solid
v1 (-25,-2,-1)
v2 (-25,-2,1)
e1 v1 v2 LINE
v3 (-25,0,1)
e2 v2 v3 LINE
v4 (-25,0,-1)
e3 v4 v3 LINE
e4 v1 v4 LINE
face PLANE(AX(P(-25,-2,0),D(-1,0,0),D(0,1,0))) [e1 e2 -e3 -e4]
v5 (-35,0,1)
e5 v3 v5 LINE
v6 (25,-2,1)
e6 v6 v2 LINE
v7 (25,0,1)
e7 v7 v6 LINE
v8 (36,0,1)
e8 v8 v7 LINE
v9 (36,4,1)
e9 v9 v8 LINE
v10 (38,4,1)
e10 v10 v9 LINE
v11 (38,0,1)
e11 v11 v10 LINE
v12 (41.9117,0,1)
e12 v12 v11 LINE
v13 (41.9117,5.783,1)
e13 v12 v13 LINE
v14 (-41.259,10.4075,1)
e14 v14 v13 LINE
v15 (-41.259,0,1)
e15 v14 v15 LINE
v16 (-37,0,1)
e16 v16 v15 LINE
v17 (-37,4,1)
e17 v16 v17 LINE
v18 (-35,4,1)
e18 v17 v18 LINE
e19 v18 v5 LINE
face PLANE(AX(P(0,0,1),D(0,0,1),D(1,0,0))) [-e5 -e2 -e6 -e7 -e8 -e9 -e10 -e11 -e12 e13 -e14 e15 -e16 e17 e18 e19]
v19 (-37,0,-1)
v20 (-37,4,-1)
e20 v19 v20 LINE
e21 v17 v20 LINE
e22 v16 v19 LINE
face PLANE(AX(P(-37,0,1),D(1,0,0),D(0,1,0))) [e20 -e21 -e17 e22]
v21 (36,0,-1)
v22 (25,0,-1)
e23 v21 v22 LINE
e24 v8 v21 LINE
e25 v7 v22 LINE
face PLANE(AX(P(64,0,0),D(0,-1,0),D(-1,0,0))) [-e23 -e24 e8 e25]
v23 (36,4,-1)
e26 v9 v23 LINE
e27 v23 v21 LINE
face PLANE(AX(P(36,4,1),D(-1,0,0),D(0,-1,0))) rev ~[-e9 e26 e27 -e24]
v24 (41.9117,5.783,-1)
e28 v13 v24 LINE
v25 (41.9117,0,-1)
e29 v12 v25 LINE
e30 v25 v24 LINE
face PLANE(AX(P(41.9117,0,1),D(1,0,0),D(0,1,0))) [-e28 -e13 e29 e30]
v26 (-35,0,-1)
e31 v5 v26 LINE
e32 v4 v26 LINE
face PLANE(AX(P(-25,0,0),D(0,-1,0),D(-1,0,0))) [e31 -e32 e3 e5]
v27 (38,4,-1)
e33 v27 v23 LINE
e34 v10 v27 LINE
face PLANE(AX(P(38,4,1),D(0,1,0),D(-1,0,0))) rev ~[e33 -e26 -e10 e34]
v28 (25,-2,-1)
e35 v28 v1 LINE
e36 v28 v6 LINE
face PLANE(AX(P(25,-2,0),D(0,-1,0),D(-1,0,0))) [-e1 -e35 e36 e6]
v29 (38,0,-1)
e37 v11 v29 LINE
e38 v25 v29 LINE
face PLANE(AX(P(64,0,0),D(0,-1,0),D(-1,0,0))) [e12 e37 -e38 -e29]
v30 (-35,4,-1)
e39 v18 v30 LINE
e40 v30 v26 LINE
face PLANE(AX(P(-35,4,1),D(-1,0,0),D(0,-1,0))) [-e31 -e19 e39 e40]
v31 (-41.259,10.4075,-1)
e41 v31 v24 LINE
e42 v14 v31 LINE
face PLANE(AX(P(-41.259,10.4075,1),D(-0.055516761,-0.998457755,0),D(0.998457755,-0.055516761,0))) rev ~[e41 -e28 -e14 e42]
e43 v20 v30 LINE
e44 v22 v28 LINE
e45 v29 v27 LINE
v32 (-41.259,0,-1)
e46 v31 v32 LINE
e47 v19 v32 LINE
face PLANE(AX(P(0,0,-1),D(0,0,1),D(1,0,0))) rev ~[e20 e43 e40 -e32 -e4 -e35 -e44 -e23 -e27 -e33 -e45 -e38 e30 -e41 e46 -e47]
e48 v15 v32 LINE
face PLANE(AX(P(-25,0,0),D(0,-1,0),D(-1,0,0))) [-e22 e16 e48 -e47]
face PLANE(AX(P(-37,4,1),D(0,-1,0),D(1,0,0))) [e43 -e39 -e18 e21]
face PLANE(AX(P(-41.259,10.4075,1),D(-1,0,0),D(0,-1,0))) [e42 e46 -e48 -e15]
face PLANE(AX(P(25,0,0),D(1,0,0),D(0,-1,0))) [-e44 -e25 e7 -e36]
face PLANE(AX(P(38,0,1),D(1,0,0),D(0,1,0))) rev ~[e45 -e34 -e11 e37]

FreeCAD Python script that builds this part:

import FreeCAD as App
import Part
import Sketcher


def add_polygon(sketch, points):
    """Adds a closed chain of lines whose ends are joined by coincident constraints."""
    first, n = sketch.GeometryCount, len(points)
    for a, b in zip(points, points[1:] + points[:1]):
        sketch.addGeometry(Part.LineSegment(App.Vector(*a, 0), App.Vector(*b, 0)), False)
    for i in range(n):
        sketch.addConstraint(Sketcher.Constraint("Coincident", first + i, 2, first + (i + 1) % n, 1))

doc = App.newDocument("Part")
body = doc.addObject("PartDesign::Body", "Body")

sketch1 = body.newObject("Sketcher::SketchObject", "Sketch")
sketch1.AttachmentSupport = (doc.getObject("XY_Plane"), [""])
sketch1.MapMode = "FlatFace"
add_polygon(sketch1, [(64, 50), (-64, 50), (-64, 0), (-25, 0), (-25, -2), (25, -2), (25, 0), (64, 0)])
sketch1.addConstraint(Sketcher.Constraint("Horizontal", 0))
sketch1.addConstraint(Sketcher.Constraint("Vertical", 1))
sketch1.addConstraint(Sketcher.Constraint("Horizontal", 2))
sketch1.addConstraint(Sketcher.Constraint("Vertical", 3))
sketch1.addConstraint(Sketcher.Constraint("Horizontal", 4))
sketch1.addConstraint(Sketcher.Constraint("Vertical", 5))
sketch1.addConstraint(Sketcher.Constraint("Horizontal", 6))
sketch1.addConstraint(Sketcher.Constraint("Vertical", 7))
sketch1.addConstraint(Sketcher.Constraint("Symmetric", 2, 2, 5, 2, -1, 1))
sketch1.addConstraint(Sketcher.Constraint("Symmetric", 1, 2, 6, 2, -2))
sketch1.addConstraint(Sketcher.Constraint("Equal", 4, 1))
sketch1.addConstraint(Sketcher.Constraint("DistanceX", 0, 2, 0, 1, 128.0))
sketch1.addConstraint(Sketcher.Constraint("DistanceX", 4, 1, 4, 2, 50.0))
sketch1.addConstraint(Sketcher.Constraint("DistanceY", 3, 2, 3, 1, 2.0))
pad1 = body.newObject("PartDesign::Pad", "Pad")
pad1.Profile = sketch1
pad1.Length = 2
pad1.Midplane = True

sketch2 = body.newObject("Sketcher::SketchObject", "Sketch001")
sketch2.AttachmentSupport = (doc.getObject("XY_Plane"), [""])
sketch2.MapMode = "FlatFace"
sketch2.AttachmentOffset = App.Placement(App.Vector(0, 0, 1), App.Rotation())
add_polygon(sketch2, [(-41, 0), (-41, 10), (42, 6), (42, 0), (92, 0), (92, 60), (-91, 60), (-91, 0)])
sketch2.addConstraint(Sketcher.Constraint("Vertical", 0))
sketch2.addConstraint(Sketcher.Constraint("Vertical", 2))
sketch2.addConstraint(Sketcher.Constraint("Horizontal", 3))
sketch2.addConstraint(Sketcher.Constraint("Vertical", 4))
sketch2.addConstraint(Sketcher.Constraint("Horizontal", 5))
sketch2.addConstraint(Sketcher.Constraint("Vertical", 6))
sketch2.addConstraint(Sketcher.Constraint("Horizontal", 7))
sketch2.addConstraint(Sketcher.Constraint("PointOnObject", 2, 2, -1))
sketch2.addConstraint(Sketcher.Constraint("PointOnObject", 6, 2, -1))
sketch2.addConstraint(Sketcher.Constraint("Equal", 3, 7))
sketch2.addConstraint(Sketcher.Constraint("DistanceX", 3, 1, 3, 2, 50.0))
sketch2.addConstraint(Sketcher.Constraint("DistanceY", 4, 1, 4, 2, 60.0))
sketch2.addConstraint(Sketcher.Constraint("DistanceY", 2, 2, 2, 1, 5.783))
sketch2.addConstraint(Sketcher.Constraint("DistanceX", 5, 2, 5, 1, 183.1707))
sketch2.addConstraint(Sketcher.Constraint("DistanceY", 0, 1, 0, 2, 10.4075))
sketch2.addConstraint(Sketcher.Constraint("DistanceX", 0, 2, -1, 1, 41.259))
pocket1 = body.newObject("PartDesign::Pocket", "Pocket")
pocket1.Profile = sketch2
pocket1.Type = "ThroughAll"

sketch3 = body.newObject("Sketcher::SketchObject", "Sketch002")
sketch3.AttachmentSupport = (doc.getObject("XY_Plane"), [""])
sketch3.MapMode = "FlatFace"
sketch3.AttachmentOffset = App.Placement(App.Vector(0, 0, 1), App.Rotation())
add_polygon(sketch3, [(-35, 4), (-37, 4), (-37, 0), (-35, 0)])
add_polygon(sketch3, [(38, 0), (38, 4), (36, 4), (36, 0)])
sketch3.addConstraint(Sketcher.Constraint("Horizontal", 0))
sketch3.addConstraint(Sketcher.Constraint("Vertical", 1))
sketch3.addConstraint(Sketcher.Constraint("Horizontal", 2))
sketch3.addConstraint(Sketcher.Constraint("Vertical", 3))
sketch3.addConstraint(Sketcher.Constraint("Vertical", 4))
sketch3.addConstraint(Sketcher.Constraint("Horizontal", 5))
sketch3.addConstraint(Sketcher.Constraint("Vertical", 6))
sketch3.addConstraint(Sketcher.Constraint("Horizontal", 7))
sketch3.addConstraint(Sketcher.Constraint("PointOnObject", 1, 2, -1))
sketch3.addConstraint(Sketcher.Constraint("PointOnObject", 6, 2, -1))
sketch3.addConstraint(Sketcher.Constraint("Horizontal", 3, 2, 4, 2))
sketch3.addConstraint(Sketcher.Constraint("Equal", 2, 5))
sketch3.addConstraint(Sketcher.Constraint("DistanceY", 1, 2, 1, 1, 4.0))
sketch3.addConstraint(Sketcher.Constraint("DistanceX", 0, 2, 0, 1, 2.0))
sketch3.addConstraint(Sketcher.Constraint("DistanceX", 0, 2, -1, 1, 37.0))
sketch3.addConstraint(Sketcher.Constraint("DistanceX", -1, 1, 4, 2, 38.0))
pocket2 = body.newObject("PartDesign::Pocket", "Pocket001")
pocket2.Profile = sketch3
pocket2.Type = "ThroughAll"

doc.recompute()
